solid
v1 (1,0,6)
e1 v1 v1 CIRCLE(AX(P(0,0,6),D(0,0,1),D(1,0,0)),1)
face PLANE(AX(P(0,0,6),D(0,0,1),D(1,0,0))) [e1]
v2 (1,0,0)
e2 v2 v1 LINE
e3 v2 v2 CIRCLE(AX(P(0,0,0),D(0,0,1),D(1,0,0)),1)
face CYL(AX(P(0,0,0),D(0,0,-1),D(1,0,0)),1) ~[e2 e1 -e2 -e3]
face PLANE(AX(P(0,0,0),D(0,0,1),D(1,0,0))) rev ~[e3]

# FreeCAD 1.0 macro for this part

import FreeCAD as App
import Part
import Sketcher
from FreeCAD import Vector

doc = App.newDocument("Part")
body = doc.addObject("PartDesign::Body", "Body")

sketch1 = doc.addObject("Sketcher::SketchObject", "Sketch")
body.addObject(sketch1)
sketch1.AttachmentSupport = (doc.XY_Plane, [""])
sketch1.MapMode = "FlatFace"
sketch1.addGeometry(Part.Circle(Vector(0, 0, 0), Vector(0, 0, 1), 1), False)
sketch1.addConstraint([
    Sketcher.Constraint("Coincident", 0, 3, -1, 1),
    Sketcher.Constraint("Diameter", 0, 2.0),
])
pad1 = doc.addObject("PartDesign::Pad", "Pad")
body.addObject(pad1)
pad1.Profile = sketch1
pad1.Length = 6

doc.recompute()
